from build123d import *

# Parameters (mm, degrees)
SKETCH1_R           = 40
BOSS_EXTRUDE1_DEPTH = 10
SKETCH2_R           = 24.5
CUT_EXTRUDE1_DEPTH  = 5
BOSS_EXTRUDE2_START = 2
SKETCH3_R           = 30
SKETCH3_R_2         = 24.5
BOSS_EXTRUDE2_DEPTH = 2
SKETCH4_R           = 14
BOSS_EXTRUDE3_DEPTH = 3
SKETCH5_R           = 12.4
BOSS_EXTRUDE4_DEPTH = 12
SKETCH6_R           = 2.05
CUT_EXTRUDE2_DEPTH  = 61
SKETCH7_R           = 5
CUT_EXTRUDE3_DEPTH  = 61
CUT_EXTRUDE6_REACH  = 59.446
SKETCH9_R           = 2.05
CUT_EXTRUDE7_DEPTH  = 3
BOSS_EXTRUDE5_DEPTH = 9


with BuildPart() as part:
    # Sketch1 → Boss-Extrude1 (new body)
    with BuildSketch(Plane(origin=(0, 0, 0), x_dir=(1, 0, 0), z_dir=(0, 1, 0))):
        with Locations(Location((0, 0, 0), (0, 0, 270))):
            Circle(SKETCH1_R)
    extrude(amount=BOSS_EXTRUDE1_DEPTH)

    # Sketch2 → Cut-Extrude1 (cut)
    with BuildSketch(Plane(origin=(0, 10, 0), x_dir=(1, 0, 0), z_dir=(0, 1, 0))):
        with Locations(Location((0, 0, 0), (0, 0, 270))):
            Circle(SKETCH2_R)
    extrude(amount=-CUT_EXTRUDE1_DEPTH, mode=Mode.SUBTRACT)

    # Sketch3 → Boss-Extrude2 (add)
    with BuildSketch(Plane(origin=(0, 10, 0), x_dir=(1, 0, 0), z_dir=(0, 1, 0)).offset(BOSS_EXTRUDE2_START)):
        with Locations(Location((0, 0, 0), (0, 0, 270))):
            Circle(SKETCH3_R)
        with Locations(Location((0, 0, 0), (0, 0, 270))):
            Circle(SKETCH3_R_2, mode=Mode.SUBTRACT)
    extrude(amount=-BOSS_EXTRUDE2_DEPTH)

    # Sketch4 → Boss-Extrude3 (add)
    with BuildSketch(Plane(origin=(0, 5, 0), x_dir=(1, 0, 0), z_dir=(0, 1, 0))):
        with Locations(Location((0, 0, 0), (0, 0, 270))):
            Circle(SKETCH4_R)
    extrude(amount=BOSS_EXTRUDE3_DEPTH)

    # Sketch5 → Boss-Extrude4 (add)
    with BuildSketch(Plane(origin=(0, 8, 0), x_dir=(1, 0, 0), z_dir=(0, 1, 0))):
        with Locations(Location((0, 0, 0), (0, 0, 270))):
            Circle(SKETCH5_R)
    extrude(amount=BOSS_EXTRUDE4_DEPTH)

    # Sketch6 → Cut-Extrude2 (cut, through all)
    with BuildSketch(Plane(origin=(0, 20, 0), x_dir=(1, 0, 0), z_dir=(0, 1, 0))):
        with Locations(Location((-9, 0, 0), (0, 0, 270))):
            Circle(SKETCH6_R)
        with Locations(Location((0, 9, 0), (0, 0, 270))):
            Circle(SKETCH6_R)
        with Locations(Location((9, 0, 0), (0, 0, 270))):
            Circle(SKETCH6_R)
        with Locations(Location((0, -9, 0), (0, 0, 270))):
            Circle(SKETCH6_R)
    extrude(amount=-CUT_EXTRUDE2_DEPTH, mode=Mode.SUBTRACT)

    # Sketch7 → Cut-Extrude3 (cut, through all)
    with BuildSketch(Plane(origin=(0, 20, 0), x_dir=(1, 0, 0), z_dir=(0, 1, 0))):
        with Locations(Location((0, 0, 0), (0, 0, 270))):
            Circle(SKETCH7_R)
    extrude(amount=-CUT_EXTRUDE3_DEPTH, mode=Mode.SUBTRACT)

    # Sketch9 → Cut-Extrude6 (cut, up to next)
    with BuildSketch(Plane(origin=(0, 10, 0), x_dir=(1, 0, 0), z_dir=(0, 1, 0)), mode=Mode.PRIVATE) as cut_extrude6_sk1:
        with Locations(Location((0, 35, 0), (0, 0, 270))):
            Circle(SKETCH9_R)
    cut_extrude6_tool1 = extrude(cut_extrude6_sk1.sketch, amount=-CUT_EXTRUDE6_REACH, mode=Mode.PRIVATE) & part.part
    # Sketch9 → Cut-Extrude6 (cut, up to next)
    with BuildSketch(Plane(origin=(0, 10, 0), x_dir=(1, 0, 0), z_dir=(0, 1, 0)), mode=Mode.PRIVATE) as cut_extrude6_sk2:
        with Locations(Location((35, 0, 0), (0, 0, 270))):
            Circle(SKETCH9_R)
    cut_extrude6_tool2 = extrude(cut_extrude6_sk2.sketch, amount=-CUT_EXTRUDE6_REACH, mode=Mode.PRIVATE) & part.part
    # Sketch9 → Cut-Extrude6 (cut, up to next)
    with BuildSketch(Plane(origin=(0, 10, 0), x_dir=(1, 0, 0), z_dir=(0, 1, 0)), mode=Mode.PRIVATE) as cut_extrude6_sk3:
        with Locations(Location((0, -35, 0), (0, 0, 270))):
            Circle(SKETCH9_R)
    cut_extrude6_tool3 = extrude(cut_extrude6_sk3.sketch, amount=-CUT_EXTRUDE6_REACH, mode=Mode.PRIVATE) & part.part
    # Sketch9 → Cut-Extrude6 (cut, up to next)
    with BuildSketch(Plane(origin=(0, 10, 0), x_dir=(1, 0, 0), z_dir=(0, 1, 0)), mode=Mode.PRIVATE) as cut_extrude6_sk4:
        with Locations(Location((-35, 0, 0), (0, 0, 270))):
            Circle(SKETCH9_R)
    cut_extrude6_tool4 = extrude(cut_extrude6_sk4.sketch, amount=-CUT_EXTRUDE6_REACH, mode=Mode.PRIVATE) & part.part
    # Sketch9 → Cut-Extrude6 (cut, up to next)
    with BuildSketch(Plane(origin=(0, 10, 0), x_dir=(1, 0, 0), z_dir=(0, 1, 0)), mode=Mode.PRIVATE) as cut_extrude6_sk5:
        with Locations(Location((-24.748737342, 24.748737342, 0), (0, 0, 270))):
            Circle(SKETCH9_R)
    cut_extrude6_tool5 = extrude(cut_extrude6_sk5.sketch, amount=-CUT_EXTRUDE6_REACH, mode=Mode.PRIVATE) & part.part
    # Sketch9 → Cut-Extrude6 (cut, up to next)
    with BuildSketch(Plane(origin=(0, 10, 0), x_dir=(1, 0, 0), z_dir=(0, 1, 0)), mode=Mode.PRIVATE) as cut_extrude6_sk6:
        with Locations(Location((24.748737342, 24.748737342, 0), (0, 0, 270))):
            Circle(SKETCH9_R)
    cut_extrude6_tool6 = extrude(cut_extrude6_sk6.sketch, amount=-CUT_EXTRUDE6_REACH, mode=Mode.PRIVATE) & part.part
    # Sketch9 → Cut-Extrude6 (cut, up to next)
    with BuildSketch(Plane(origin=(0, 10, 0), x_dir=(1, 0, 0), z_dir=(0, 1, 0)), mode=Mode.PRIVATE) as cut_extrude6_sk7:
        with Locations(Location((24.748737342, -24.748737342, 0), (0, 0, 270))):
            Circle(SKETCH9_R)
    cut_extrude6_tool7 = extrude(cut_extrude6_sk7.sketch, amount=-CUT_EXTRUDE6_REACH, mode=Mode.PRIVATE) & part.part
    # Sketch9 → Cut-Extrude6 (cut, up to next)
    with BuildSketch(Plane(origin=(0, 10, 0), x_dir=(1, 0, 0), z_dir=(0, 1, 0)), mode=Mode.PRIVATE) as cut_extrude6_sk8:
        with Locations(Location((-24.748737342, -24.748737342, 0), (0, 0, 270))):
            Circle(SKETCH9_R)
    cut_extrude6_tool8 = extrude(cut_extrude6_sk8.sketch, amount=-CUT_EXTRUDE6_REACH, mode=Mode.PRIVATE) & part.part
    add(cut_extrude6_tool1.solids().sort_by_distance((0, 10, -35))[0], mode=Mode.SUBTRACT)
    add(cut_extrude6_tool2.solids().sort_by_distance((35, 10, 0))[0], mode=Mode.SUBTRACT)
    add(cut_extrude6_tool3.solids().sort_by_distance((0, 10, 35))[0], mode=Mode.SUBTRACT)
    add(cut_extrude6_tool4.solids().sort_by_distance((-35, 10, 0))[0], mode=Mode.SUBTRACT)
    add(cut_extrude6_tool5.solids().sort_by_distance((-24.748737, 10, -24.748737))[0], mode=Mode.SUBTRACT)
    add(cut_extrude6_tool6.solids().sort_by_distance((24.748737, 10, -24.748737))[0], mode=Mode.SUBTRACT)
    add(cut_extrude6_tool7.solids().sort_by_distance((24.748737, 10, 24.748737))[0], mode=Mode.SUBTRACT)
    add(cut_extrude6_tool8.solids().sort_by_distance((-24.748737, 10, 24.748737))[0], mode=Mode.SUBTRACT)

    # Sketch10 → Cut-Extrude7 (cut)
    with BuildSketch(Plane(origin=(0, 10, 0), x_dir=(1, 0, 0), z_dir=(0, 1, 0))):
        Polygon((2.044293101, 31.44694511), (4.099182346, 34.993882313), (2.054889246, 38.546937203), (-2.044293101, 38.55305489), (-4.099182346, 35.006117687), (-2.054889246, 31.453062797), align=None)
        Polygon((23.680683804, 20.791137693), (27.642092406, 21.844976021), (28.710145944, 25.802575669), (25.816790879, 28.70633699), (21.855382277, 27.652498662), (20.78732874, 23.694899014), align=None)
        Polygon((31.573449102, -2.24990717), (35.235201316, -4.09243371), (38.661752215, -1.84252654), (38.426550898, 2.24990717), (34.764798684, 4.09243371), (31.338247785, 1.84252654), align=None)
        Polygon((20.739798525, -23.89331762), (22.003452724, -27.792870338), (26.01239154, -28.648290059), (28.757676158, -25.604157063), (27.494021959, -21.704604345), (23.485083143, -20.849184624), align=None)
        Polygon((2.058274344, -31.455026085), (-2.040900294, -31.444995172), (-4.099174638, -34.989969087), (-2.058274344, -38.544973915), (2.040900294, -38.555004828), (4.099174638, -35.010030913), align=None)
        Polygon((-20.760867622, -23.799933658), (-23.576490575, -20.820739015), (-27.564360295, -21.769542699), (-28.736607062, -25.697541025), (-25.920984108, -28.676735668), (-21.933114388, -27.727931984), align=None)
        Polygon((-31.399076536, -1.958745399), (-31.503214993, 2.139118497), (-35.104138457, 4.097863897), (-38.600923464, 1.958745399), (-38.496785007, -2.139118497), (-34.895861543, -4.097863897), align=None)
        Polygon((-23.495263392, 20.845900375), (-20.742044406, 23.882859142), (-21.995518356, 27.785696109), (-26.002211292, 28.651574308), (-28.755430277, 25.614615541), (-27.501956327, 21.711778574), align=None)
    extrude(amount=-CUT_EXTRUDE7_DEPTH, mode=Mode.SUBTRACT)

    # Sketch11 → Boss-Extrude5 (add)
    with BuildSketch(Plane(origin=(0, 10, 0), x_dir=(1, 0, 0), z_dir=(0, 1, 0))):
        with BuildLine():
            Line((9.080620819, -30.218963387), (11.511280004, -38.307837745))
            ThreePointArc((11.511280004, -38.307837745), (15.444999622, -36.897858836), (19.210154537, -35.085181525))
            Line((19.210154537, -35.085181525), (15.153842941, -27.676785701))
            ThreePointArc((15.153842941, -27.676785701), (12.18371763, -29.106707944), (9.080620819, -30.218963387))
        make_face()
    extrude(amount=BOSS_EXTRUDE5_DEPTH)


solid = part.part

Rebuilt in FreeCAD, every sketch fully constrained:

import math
import FreeCAD as App
import Part
import Sketcher

V = App.Vector
Q = App.Units.Quantity

doc = App.newDocument("Part")
body = doc.addObject("PartDesign::Body", "Body")

sketch1 = doc.addObject("Sketcher::SketchObject", "Sketch")
body.addObject(sketch1)
sketch1.AttachmentSupport = (doc.XZ_Plane, [""])
sketch1.MapMode = "FlatFace"
sketch1.addGeometry(Part.Circle(V(0, 0, 0), V(0, 0, 1), 40), False)
sketch1.addConstraint([
    Sketcher.Constraint("Coincident", 0, 3, -1, 1),
    Sketcher.Constraint("Diameter", 0, Q("80 mm")),
])
pad1 = doc.addObject("PartDesign::Pad", "Pad")
body.addObject(pad1)
pad1.Profile = sketch1
pad1.Length = 10
pad1.Reversed = True

sketch2 = doc.addObject("Sketcher::SketchObject", "Sketch001")
body.addObject(sketch2)
sketch2.AttachmentSupport = (doc.XZ_Plane, [""])
sketch2.MapMode = "FlatFace"
sketch2.AttachmentOffset = App.Placement(V(0, 0, -10), App.Rotation())
sketch2.addGeometry(Part.Circle(V(0, 0, 0), V(0, 0, 1), 24), False)
sketch2.addConstraint([
    Sketcher.Constraint("Coincident", 0, 3, -1, 1),
    Sketcher.Constraint("Diameter", 0, Q("49 mm")),
])
pocket1 = doc.addObject("PartDesign::Pocket", "Pocket")
body.addObject(pocket1)
pocket1.Profile = sketch2
pocket1.Length = 5
pocket1.Reversed = True

sketch3 = doc.addObject("Sketcher::SketchObject", "Sketch002")
body.addObject(sketch3)
sketch3.AttachmentSupport = (doc.XZ_Plane, [""])
sketch3.MapMode = "FlatFace"
sketch3.AttachmentOffset = App.Placement(V(0, 0, -12), App.Rotation())
sketch3.addGeometry([
    Part.Circle(V(0, 0, 0), V(0, 0, 1), 30),
    Part.Circle(V(0, 0, 0), V(0, 0, 1), 24),
], False)
sketch3.addConstraint([
    Sketcher.Constraint("Coincident", 0, 3, -1, 1),
    Sketcher.Constraint("Coincident", 1, 3, -1, 1),
    Sketcher.Constraint("Diameter", 0, Q("60 mm")),
    Sketcher.Constraint("Diameter", 1, Q("49 mm")),
])
pad2 = doc.addObject("PartDesign::Pad", "Pad001")
body.addObject(pad2)
pad2.Profile = sketch3
pad2.Length = 2

sketch4 = doc.addObject("Sketcher::SketchObject", "Sketch003")
body.addObject(sketch4)
sketch4.AttachmentSupport = (doc.XZ_Plane, [""])
sketch4.MapMode = "FlatFace"
sketch4.AttachmentOffset = App.Placement(V(0, 0, -5), App.Rotation())
sketch4.addGeometry(Part.Circle(V(0, 0, 0), V(0, 0, 1), 14), False)
sketch4.addConstraint([
    Sketcher.Constraint("Coincident", 0, 3, -1, 1),
    Sketcher.Constraint("Diameter", 0, Q("28 mm")),
])
pad3 = doc.addObject("PartDesign::Pad", "Pad002")
body.addObject(pad3)
pad3.Profile = sketch4
pad3.Length = 3
pad3.Reversed = True

sketch5 = doc.addObject("Sketcher::SketchObject", "Sketch004")
body.addObject(sketch5)
sketch5.AttachmentSupport = (doc.XZ_Plane, [""])
sketch5.MapMode = "FlatFace"
sketch5.AttachmentOffset = App.Placement(V(0, 0, -8), App.Rotation())
sketch5.addGeometry(Part.Circle(V(0, 0, 0), V(0, 0, 1), 12), False)
sketch5.addConstraint([
    Sketcher.Constraint("Coincident", 0, 3, -1, 1),
    Sketcher.Constraint("Diameter", 0, Q("24.8 mm")),
])
pad4 = doc.addObject("PartDesign::Pad", "Pad003")
body.addObject(pad4)
pad4.Profile = sketch5
pad4.Length = 12
pad4.Reversed = True

sketch6 = doc.addObject("Sketcher::SketchObject", "Sketch005")
body.addObject(sketch6)
sketch6.AttachmentSupport = (doc.XZ_Plane, [""])
sketch6.MapMode = "FlatFace"
sketch6.AttachmentOffset = App.Placement(V(0, 0, -20), App.Rotation())
sketch6.addGeometry([
    Part.Circle(V(-9, 0, 0), V(0, 0, 1), 2),
    Part.Circle(V(0, -9, 0), V(0, 0, 1), 2),
    Part.Circle(V(9, 0, 0), V(0, 0, 1), 2),
    Part.Circle(V(0, 9, 0), V(0, 0, 1), 2),
], False)
sketch6.addConstraint([
    Sketcher.Constraint("Equal", 0, 1),
    Sketcher.Constraint("Equal", 1, 2),
    Sketcher.Constraint("Equal", 2, 3),
    Sketcher.Constraint("Symmetric", 0, 3, 2, 3, -1, 1),
    Sketcher.Constraint("Symmetric", 1, 3, 3, 3, -1, 1),
    Sketcher.Constraint("PointOnObject", 0, 3, -1),
    Sketcher.Constraint("PointOnObject", 1, 3, -2),
    Sketcher.Constraint("Diameter", 0, Q("4.1 mm")),
    Sketcher.Constraint("DistanceX", 0, 3, -1, 1, Q("9 mm")),
    Sketcher.Constraint("DistanceY", 1, 3, -1, 1, Q("9 mm")),
])
pocket2 = doc.addObject("PartDesign::Pocket", "Pocket001")
body.addObject(pocket2)
pocket2.Profile = sketch6
pocket2.Type = "ThroughAll"
pocket2.Reversed = True

sketch7 = doc.addObject("Sketcher::SketchObject", "Sketch006")
body.addObject(sketch7)
sketch7.AttachmentSupport = (doc.XZ_Plane, [""])
sketch7.MapMode = "FlatFace"
sketch7.AttachmentOffset = App.Placement(V(0, 0, -20), App.Rotation())
sketch7.addGeometry(Part.Circle(V(0, 0, 0), V(0, 0, 1), 5), False)
sketch7.addConstraint([
    Sketcher.Constraint("Coincident", 0, 3, -1, 1),
    Sketcher.Constraint("Diameter", 0, Q("10 mm")),
])
pocket3 = doc.addObject("PartDesign::Pocket", "Pocket002")
body.addObject(pocket3)
pocket3.Profile = sketch7
pocket3.Type = "ThroughAll"
pocket3.Reversed = True

sketch8 = doc.addObject("Sketcher::SketchObject", "Sketch007")
body.addObject(sketch8)
sketch8.AttachmentSupport = (doc.XZ_Plane, [""])
sketch8.MapMode = "FlatFace"
sketch8.AttachmentOffset = App.Placement(V(0, 0, -10), App.Rotation())
sketch8.addGeometry(Part.Circle(V(0, -35, 0), V(0, 0, 1), 2), False)
sketch8.addConstraint([
    Sketcher.Constraint("PointOnObject", 0, 3, -2),
    Sketcher.Constraint("Diameter", 0, Q("4.1 mm")),
    Sketcher.Constraint("DistanceY", 0, 3, -1, 1, Q("35 mm")),
])
pocket4 = doc.addObject("PartDesign::Pocket", "Pocket003")
body.addObject(pocket4)
pocket4.Profile = sketch8
pocket4.Type = "UpToFirst"
pocket4.Reversed = True

sketch9 = doc.addObject("Sketcher::SketchObject", "Sketch008")
body.addObject(sketch9)
sketch9.AttachmentSupport = (doc.XZ_Plane, [""])
sketch9.MapMode = "FlatFace"
sketch9.AttachmentOffset = App.Placement(V(0, 0, -10), App.Rotation())
sketch9.addGeometry(Part.Circle(V(35, 0, 0), V(0, 0, 1), 2), False)
sketch9.addConstraint([
    Sketcher.Constraint("PointOnObject", 0, 3, -1),
    Sketcher.Constraint("Diameter", 0, Q("4.1 mm")),
    Sketcher.Constraint("DistanceX", -1, 1, 0, 3, Q("35 mm")),
])
pocket5 = doc.addObject("PartDesign::Pocket", "Pocket004")
body.addObject(pocket5)
pocket5.Profile = sketch9
pocket5.Type = "UpToFirst"
pocket5.Reversed = True

sketch10 = doc.addObject("Sketcher::SketchObject", "Sketch009")
body.addObject(sketch10)
sketch10.AttachmentSupport = (doc.XZ_Plane, [""])
sketch10.MapMode = "FlatFace"
sketch10.AttachmentOffset = App.Placement(V(0, 0, -10), App.Rotation())
sketch10.addGeometry(Part.Circle(V(0, 35, 0), V(0, 0, 1), 2), False)
sketch10.addConstraint([
    Sketcher.Constraint("PointOnObject", 0, 3, -2),
    Sketcher.Constraint("Diameter", 0, Q("4.1 mm")),
    Sketcher.Constraint("DistanceY", -1, 1, 0, 3, Q("35 mm")),
])
pocket6 = doc.addObject("PartDesign::Pocket", "Pocket005")
body.addObject(pocket6)
pocket6.Profile = sketch10
pocket6.Type = "UpToFirst"
pocket6.Reversed = True

sketch11 = doc.addObject("Sketcher::SketchObject", "Sketch010")
body.addObject(sketch11)
sketch11.AttachmentSupport = (doc.XZ_Plane, [""])
sketch11.MapMode = "FlatFace"
sketch11.AttachmentOffset = App.Placement(V(0, 0, -10), App.Rotation())
sketch11.addGeometry(Part.Circle(V(-35, 0, 0), V(0, 0, 1), 2), False)
sketch11.addConstraint([
    Sketcher.Constraint("PointOnObject", 0, 3, -1),
    Sketcher.Constraint("Diameter", 0, Q("4.1 mm")),
    Sketcher.Constraint("DistanceX", 0, 3, -1, 1, Q("35 mm")),
])
pocket7 = doc.addObject("PartDesign::Pocket", "Pocket006")
body.addObject(pocket7)
pocket7.Profile = sketch11
pocket7.Type = "UpToFirst"
pocket7.Reversed = True

sketch12 = doc.addObject("Sketcher::SketchObject", "Sketch011")
body.addObject(sketch12)
sketch12.AttachmentSupport = (doc.XZ_Plane, [""])
sketch12.MapMode = "FlatFace"
sketch12.AttachmentOffset = App.Placement(V(0, 0, -10), App.Rotation())
sketch12.addGeometry(Part.Circle(V(-24.7, -24.7, 0), V(0, 0, 1), 2), False)
sketch12.addConstraint([
    Sketcher.Constraint("Diameter", 0, Q("4.1 mm")),
    Sketcher.Constraint("DistanceX", 0, 3, -1, 1, Q("24.748737 mm")),
    Sketcher.Constraint("DistanceY", 0, 3, -1, 1, Q("24.748737 mm")),
])
pocket8 = doc.addObject("PartDesign::Pocket", "Pocket007")
body.addObject(pocket8)
pocket8.Profile = sketch12
pocket8.Type = "UpToFirst"
pocket8.Reversed = True

sketch13 = doc.addObject("Sketcher::SketchObject", "Sketch012")
body.addObject(sketch13)
sketch13.AttachmentSupport = (doc.XZ_Plane, [""])
sketch13.MapMode = "FlatFace"
sketch13.AttachmentOffset = App.Placement(V(0, 0, -10), App.Rotation())
sketch13.addGeometry(Part.Circle(V(24.7, -24.7, 0), V(0, 0, 1), 2), False)
sketch13.addConstraint([
    Sketcher.Constraint("Diameter", 0, Q("4.1 mm")),
    Sketcher.Constraint("DistanceX", -1, 1, 0, 3, Q("24.748737 mm")),
    Sketcher.Constraint("DistanceY", 0, 3, -1, 1, Q("24.748737 mm")),
])
pocket9 = doc.addObject("PartDesign::Pocket", "Pocket008")
body.addObject(pocket9)
pocket9.Profile = sketch13
pocket9.Type = "UpToFirst"
pocket9.Reversed = True

sketch14 = doc.addObject("Sketcher::SketchObject", "Sketch013")
body.addObject(sketch14)
sketch14.AttachmentSupport = (doc.XZ_Plane, [""])
sketch14.MapMode = "FlatFace"
sketch14.AttachmentOffset = App.Placement(V(0, 0, -10), App.Rotation())
sketch14.addGeometry(Part.Circle(V(24.7, 24.7, 0), V(0, 0, 1), 2), False)
sketch14.addConstraint([
    Sketcher.Constraint("Diameter", 0, Q("4.1 mm")),
    Sketcher.Constraint("DistanceX", -1, 1, 0, 3, Q("24.748737 mm")),
    Sketcher.Constraint("DistanceY", -1, 1, 0, 3, Q("24.748737 mm")),
])
pocket10 = doc.addObject("PartDesign::Pocket", "Pocket009")
body.addObject(pocket10)
pocket10.Profile = sketch14
pocket10.Type = "UpToFirst"
pocket10.Reversed = True

sketch15 = doc.addObject("Sketcher::SketchObject", "Sketch014")
body.addObject(sketch15)
sketch15.AttachmentSupport = (doc.XZ_Plane, [""])
sketch15.MapMode = "FlatFace"
sketch15.AttachmentOffset = App.Placement(V(0, 0, -10), App.Rotation())
sketch15.addGeometry(Part.Circle(V(-24.7, 24.7, 0), V(0, 0, 1), 2), False)
sketch15.addConstraint([
    Sketcher.Constraint("Diameter", 0, Q("4.1 mm")),
    Sketcher.Constraint("DistanceX", 0, 3, -1, 1, Q("24.748737 mm")),
    Sketcher.Constraint("DistanceY", -1, 1, 0, 3, Q("24.748737 mm")),
])
pocket11 = doc.addObject("PartDesign::Pocket", "Pocket010")
body.addObject(pocket11)
pocket11.Profile = sketch15
pocket11.Type = "UpToFirst"
pocket11.Reversed = True

sketch16 = doc.addObject("Sketcher::SketchObject", "Sketch015")
body.addObject(sketch16)
sketch16.AttachmentSupport = (doc.XZ_Plane, [""])
sketch16.MapMode = "FlatFace"
sketch16.AttachmentOffset = App.Placement(V(0, 0, -10), App.Rotation())
sketch16.addGeometry([
    Part.LineSegment(V(2.044293, -31.446945, 0), V(4.099182, -34.993882, 0)),
    Part.LineSegment(V(4.099182, -34.993882, 0), V(2.054889, -38.546937, 0)),
    Part.LineSegment(V(2.054889, -38.546937, 0), V(-2.044293, -38.553055, 0)),
    Part.LineSegment(V(-2.044293, -38.553055, 0), V(-4.099182, -35.006118, 0)),
    Part.LineSegment(V(-4.099182, -35.006118, 0), V(-2.054889, -31.453063, 0)),
    Part.LineSegment(V(-2.054889, -31.453063, 0), V(2.044293, -31.446945, 0)),
    Part.LineSegment(V(23.680684, -20.791138, 0), V(27.642092, -21.844976, 0)),
    Part.LineSegment(V(27.642092, -21.844976, 0), V(28.710146, -25.802576, 0)),
    Part.LineSegment(V(28.710146, -25.802576, 0), V(25.816791, -28.706337, 0)),
    Part.LineSegment(V(25.816791, -28.706337, 0), V(21.855382, -27.652499, 0)),
    Part.LineSegment(V(21.855382, -27.652499, 0), V(20.787329, -23.694899, 0)),
    Part.LineSegment(V(20.787329, -23.694899, 0), V(23.680684, -20.791138, 0)),
    Part.LineSegment(V(31.573449, 2.249907, 0), V(35.235201, 4.092434, 0)),
    Part.LineSegment(V(35.235201, 4.092434, 0), V(38.661752, 1.842527, 0)),
    Part.LineSegment(V(38.661752, 1.842527, 0), V(38.426551, -2.249907, 0)),
    Part.LineSegment(V(38.426551, -2.249907, 0), V(34.764799, -4.092434, 0)),
    Part.LineSegment(V(34.764799, -4.092434, 0), V(31.338248, -1.842527, 0)),
    Part.LineSegment(V(31.338248, -1.842527, 0), V(31.573449, 2.249907, 0)),
    Part.LineSegment(V(20.739799, 23.893318, 0), V(22.003453, 27.79287, 0)),
    Part.LineSegment(V(22.003453, 27.79287, 0), V(26.012392, 28.64829, 0)),
    Part.LineSegment(V(26.012392, 28.64829, 0), V(28.757676, 25.604157, 0)),
    Part.LineSegment(V(28.757676, 25.604157, 0), V(27.494022, 21.704604, 0)),
    Part.LineSegment(V(27.494022, 21.704604, 0), V(23.485083, 20.849185, 0)),
    Part.LineSegment(V(23.485083, 20.849185, 0), V(20.739799, 23.893318, 0)),
    Part.LineSegment(V(2.058274, 31.455026, 0), V(-2.0409, 31.444995, 0)),
    Part.LineSegment(V(-2.0409, 31.444995, 0), V(-4.099175, 34.989969, 0)),
    Part.LineSegment(V(-4.099175, 34.989969, 0), V(-2.058274, 38.544974, 0)),
    Part.LineSegment(V(-2.058274, 38.544974, 0), V(2.0409, 38.555005, 0)),
    Part.LineSegment(V(2.0409, 38.555005, 0), V(4.099175, 35.010031, 0)),
    Part.LineSegment(V(4.099175, 35.010031, 0), V(2.058274, 31.455026, 0)),
    Part.LineSegment(V(-20.760868, 23.799934, 0), V(-23.576491, 20.820739, 0)),
    Part.LineSegment(V(-23.576491, 20.820739, 0), V(-27.56436, 21.769543, 0)),
    Part.LineSegment(V(-27.56436, 21.769543, 0), V(-28.736607, 25.697541, 0)),
    Part.LineSegment(V(-28.736607, 25.697541, 0), V(-25.920984, 28.676736, 0)),
    Part.LineSegment(V(-25.920984, 28.676736, 0), V(-21.933114, 27.727932, 0)),
    Part.LineSegment(V(-21.933114, 27.727932, 0), V(-20.760868, 23.799934, 0)),
    Part.LineSegment(V(-31.399077, 1.958745, 0), V(-31.503215, -2.139118, 0)),
    Part.LineSegment(V(-31.503215, -2.139118, 0), V(-35.104138, -4.097864, 0)),
    Part.LineSegment(V(-35.104138, -4.097864, 0), V(-38.600923, -1.958745, 0)),
    Part.LineSegment(V(-38.600923, -1.958745, 0), V(-38.496785, 2.139118, 0)),
    Part.LineSegment(V(-38.496785, 2.139118, 0), V(-34.895862, 4.097864, 0)),
    Part.LineSegment(V(-34.895862, 4.097864, 0), V(-31.399077, 1.958745, 0)),
    Part.LineSegment(V(-23.495263, -20.8459, 0), V(-20.742044, -23.882859, 0)),
    Part.LineSegment(V(-20.742044, -23.882859, 0), V(-21.995518, -27.785696, 0)),
    Part.LineSegment(V(-21.995518, -27.785696, 0), V(-26.002211, -28.651574, 0)),
    Part.LineSegment(V(-26.002211, -28.651574, 0), V(-28.75543, -25.614616, 0)),
    Part.LineSegment(V(-28.75543, -25.614616, 0), V(-27.501956, -21.711779, 0)),
    Part.LineSegment(V(-27.501956, -21.711779, 0), V(-23.495263, -20.8459, 0)),
], False)
sketch16.addConstraint([
    Sketcher.Constraint("Coincident", 0, 2, 1, 1),
    Sketcher.Constraint("Coincident", 1, 2, 2, 1),
    Sketcher.Constraint("Coincident", 2, 2, 3, 1),
    Sketcher.Constraint("Coincident", 3, 2, 4, 1),
    Sketcher.Constraint("Coincident", 4, 2, 5, 1),
    Sketcher.Constraint("Coincident", 5, 2, 0, 1),
    Sketcher.Constraint("Coincident", 6, 2, 7, 1),
    Sketcher.Constraint("Coincident", 7, 2, 8, 1),
    Sketcher.Constraint("Coincident", 8, 2, 9, 1),
    Sketcher.Constraint("Coincident", 9, 2, 10, 1),
    Sketcher.Constraint("Coincident", 10, 2, 11, 1),
    Sketcher.Constraint("Coincident", 11, 2, 6, 1),
    Sketcher.Constraint("Coincident", 12, 2, 13, 1),
    Sketcher.Constraint("Coincident", 13, 2, 14, 1),
    Sketcher.Constraint("Coincident", 14, 2, 15, 1),
    Sketcher.Constraint("Coincident", 15, 2, 16, 1),
    Sketcher.Constraint("Coincident", 16, 2, 17, 1),
    Sketcher.Constraint("Coincident", 17, 2, 12, 1),
    Sketcher.Constraint("Coincident", 18, 2, 19, 1),
    Sketcher.Constraint("Coincident", 19, 2, 20, 1),
    Sketcher.Constraint("Coincident", 20, 2, 21, 1),
    Sketcher.Constraint("Coincident", 21, 2, 22, 1),
    Sketcher.Constraint("Coincident", 22, 2, 23, 1),
    Sketcher.Constraint("Coincident", 23, 2, 18, 1),
    Sketcher.Constraint("Coincident", 24, 2, 25, 1),
    Sketcher.Constraint("Coincident", 25, 2, 26, 1),
    Sketcher.Constraint("Coincident", 26, 2, 27, 1),
    Sketcher.Constraint("Coincident", 27, 2, 28, 1),
    Sketcher.Constraint("Coincident", 28, 2, 29, 1),
    Sketcher.Constraint("Coincident", 29, 2, 24, 1),
    Sketcher.Constraint("Coincident", 30, 2, 31, 1),
    Sketcher.Constraint("Coincident", 31, 2, 32, 1),
    Sketcher.Constraint("Coincident", 32, 2, 33, 1),
    Sketcher.Constraint("Coincident", 33, 2, 34, 1),
    Sketcher.Constraint("Coincident", 34, 2, 35, 1),
    Sketcher.Constraint("Coincident", 35, 2, 30, 1),
    Sketcher.Constraint("Coincident", 36, 2, 37, 1),
    Sketcher.Constraint("Coincident", 37, 2, 38, 1),
    Sketcher.Constraint("Coincident", 38, 2, 39, 1),
    Sketcher.Constraint("Coincident", 39, 2, 40, 1),
    Sketcher.Constraint("Coincident", 40, 2, 41, 1),
    Sketcher.Constraint("Coincident", 41, 2, 36, 1),
    Sketcher.Constraint("Coincident", 42, 2, 43, 1),
    Sketcher.Constraint("Coincident", 43, 2, 44, 1),
    Sketcher.Constraint("Coincident", 44, 2, 45, 1),
    Sketcher.Constraint("Coincident", 45, 2, 46, 1),
    Sketcher.Constraint("Coincident", 46, 2, 47, 1),
    Sketcher.Constraint("Coincident", 47, 2, 42, 1),
    Sketcher.Constraint("DistanceY", 31, 2, 32, 2, Q("3.927998 mm")),
    Sketcher.Constraint("DistanceY", 35, 2, 34, 2, Q("3.927998 mm")),
    Sketcher.Constraint("DistanceY", 9, 2, -1, 1, Q("27.652499 mm")),
    Sketcher.Constraint("DistanceY", 10, 2, -1, 1, Q("23.694899 mm")),
    Sketcher.Constraint("DistanceX", -1, 1, 12, 2, Q("35.235201 mm")),
    Sketcher.Constraint("DistanceX", -1, 1, 15, 2, Q("34.764799 mm")),
    Sketcher.Constraint("DistanceX", -1, 1, 23, 2, Q("20.739799 mm")),
    Sketcher.Constraint("DistanceX", 24, 2, -1, 1, Q("2.0409 mm")),
    Sketcher.Constraint("DistanceX", -1, 1, 27, 2, Q("2.0409 mm")),
    Sketcher.Constraint("DistanceY", 47, 2, -1, 1, Q("20.8459 mm")),
    Sketcher.Constraint("DistanceX", 5, 2, 6, 2, Q("25.597799 mm")),
    Sketcher.Constraint("DistanceY", 7, 2, 6, 2, Q("3.9576 mm")),
    Sketcher.Constraint("DistanceX", 8, 2, 6, 2, Q("1.825302 mm")),
    Sketcher.Constraint("DistanceX", 1, 2, 8, 2, Q("23.761902 mm")),
    Sketcher.Constraint("DistanceY", 1, 2, 8, 2, Q("9.8406 mm")),
    Sketcher.Constraint("DistanceX", 0, 2, 9, 2, Q("17.7562 mm")),
    Sketcher.Constraint("DistanceX", 9, 2, 11, 2, Q("1.825302 mm")),
    Sketcher.Constraint("DistanceY", 8, 2, 11, 2, Q("7.915199 mm")),
    Sketcher.Constraint("DistanceX", 14, 2, 13, 2, Q("0.235201 mm")),
    Sketcher.Constraint("DistanceX", 16, 2, 17, 2, Q("0.235201 mm")),
    Sketcher.Constraint("DistanceX", 17, 2, 14, 2, Q("6.853102 mm")),
    Sketcher.Constraint("DistanceX", 18, 2, 13, 2, Q("16.658299 mm")),
    Sketcher.Constraint("DistanceY", 18, 2, 25, 2, Q("7.197099 mm")),
    Sketcher.Constraint("DistanceX", 25, 2, 26, 2, Q("2.0409 mm")),
    Sketcher.Constraint("DistanceX", 29, 2, 28, 2, Q("2.0409 mm")),
    Sketcher.Constraint("DistanceX", 40, 2, 31, 2, Q("7.331501 mm")),
    Sketcher.Constraint("DistanceX", -1, 1, 1, 2, Q("2.054889 mm")),
    Sketcher.Constraint("DistanceX", 4, 2, -1, 1, Q("2.054889 mm")),
    Sketcher.Constraint("DistanceX", -1, 1, 10, 2, Q("20.787329 mm")),
    Sketcher.Constraint("DistanceX", -1, 1, 14, 2, Q("38.426551 mm")),
    Sketcher.Constraint("DistanceY", -1, 1, 18, 2, Q("27.79287 mm")),
    Sketcher.Constraint("DistanceX", -1, 1, 19, 2, Q("26.012392 mm")),
    Sketcher.Constraint("DistanceY", -1, 1, 19, 2, Q("28.64829 mm")),
    Sketcher.Constraint("DistanceX", -1, 1, 21, 2, Q("27.494022 mm")),
    Sketcher.Constraint("DistanceY", -1, 1, 28, 2, Q("35.010031 mm")),
    Sketcher.Constraint("DistanceX", 30, 2, -1, 1, Q("23.576491 mm")),
    Sketcher.Constraint("DistanceY", -1, 1, 30, 2, Q("20.820739 mm")),
    Sketcher.Constraint("DistanceX", 31, 2, -1, 1, Q("27.56436 mm")),
    Sketcher.Constraint("DistanceY", -1, 1, 32, 2, Q("25.697541 mm")),
    Sketcher.Constraint("DistanceY", -1, 1, 34, 2, Q("27.727932 mm")),
    Sketcher.Constraint("DistanceY", 36, 2, -1, 1, Q("2.139118 mm")),
    Sketcher.Constraint("DistanceX", 37, 2, -1, 1, Q("35.104138 mm")),
    Sketcher.Constraint("DistanceY", -1, 1, 39, 2, Q("2.139118 mm")),
    Sketcher.Constraint("DistanceY", 42, 2, -1, 1, Q("23.882859 mm")),
    Sketcher.Constraint("DistanceX", 43, 2, -1, 1, Q("21.995518 mm")),
    Sketcher.Constraint("DistanceX", 44, 2, -1, 1, Q("26.002211 mm")),
    Sketcher.Constraint("DistanceX", 45, 2, -1, 1, Q("28.75543 mm")),
    Sketcher.Constraint("DistanceY", 46, 2, -1, 1, Q("21.711779 mm")),
    Sketcher.Constraint("DistanceX", 3, 2, 2, 2, Q("2.054889 mm")),
    Sketcher.Constraint("DistanceX", 3, 2, 1, 2, Q("6.154072 mm")),
    Sketcher.Constraint("DistanceY", 1, 2, 3, 2, Q("3.54082 mm")),
    Sketcher.Constraint("DistanceX", 4, 2, 0, 2, Q("6.154072 mm")),
    Sketcher.Constraint("DistanceY", 0, 2, 4, 2, Q("3.54082 mm")),
    Sketcher.Constraint("DistanceY", 2, 2, 5, 2, Q("7.10611 mm")),
    Sketcher.Constraint("DistanceY", 5, 2, 6, 2, Q("9.601969 mm")),
    Sketcher.Constraint("DistanceY", 1, 2, 6, 2, Q("16.701961 mm")),
    Sketcher.Constraint("DistanceY", 8, 2, 9, 2, Q("1.053838 mm")),
    Sketcher.Constraint("DistanceY", 6, 2, 12, 2, Q("25.93741 mm")),
    Sketcher.Constraint("DistanceY", 14, 2, 12, 2, Q("6.342341 mm")),
    Sketcher.Constraint("DistanceY", 15, 2, 13, 2, Q("5.93496 mm")),
    Sketcher.Constraint("DistanceY", 16, 2, 12, 2, Q("5.93496 mm")),
    Sketcher.Constraint("DistanceY", 15, 2, 17, 2, Q("6.342341 mm")),
    Sketcher.Constraint("DistanceY", 17, 2, 20, 2, Q("23.35425 mm")),
    Sketcher.Constraint("DistanceY", 12, 2, 21, 2, Q("17.612171 mm")),
    Sketcher.Constraint("DistanceX", 22, 2, 21, 2, Q("4.008939 mm")),
    Sketcher.Constraint("DistanceY", 22, 2, 21, 2, Q("0.85542 mm")),
    Sketcher.Constraint("DistanceY", 23, 2, 20, 2, Q("1.710839 mm")),
    Sketcher.Constraint("DistanceY", 22, 2, 24, 2, Q("10.595811 mm")),
    Sketcher.Constraint("DistanceY", 23, 2, 25, 2, Q("11.096651 mm")),
    Sketcher.Constraint("DistanceY", 24, 2, 26, 2, Q("7.099979 mm")),
    Sketcher.Constraint("DistanceY", 26, 2, 27, 2, Q("0.010031 mm")),
    Sketcher.Constraint("DistanceX", 26, 2, 28, 2, Q("6.157449 mm")),
    Sketcher.Constraint("DistanceX", 28, 2, 18, 2, Q("17.904278 mm")),
    Sketcher.Constraint("DistanceY", 24, 2, 29, 2, Q("0.010031 mm")),
    Sketcher.Constraint("DistanceX", 33, 2, 25, 2, Q("21.821809 mm")),
    Sketcher.Constraint("DistanceY", 33, 2, 24, 2, Q("2.76826 mm")),
    Sketcher.Constraint("DistanceX", 33, 2, 34, 2, Q("3.98787 mm")),
    Sketcher.Constraint("DistanceX", 32, 2, 35, 2, Q("7.975739 mm")),
    Sketcher.Constraint("DistanceX", 36, 2, 33, 2, Q("5.582231 mm")),
    Sketcher.Constraint("DistanceX", 37, 2, 32, 2, Q("6.367531 mm")),
    Sketcher.Constraint("DistanceY", 37, 2, 38, 2, Q("2.139118 mm")),
    Sketcher.Constraint("DistanceX", 38, 2, 36, 2, Q("7.097708 mm")),
    Sketcher.Constraint("DistanceY", 38, 2, 31, 2, Q("23.728288 mm")),
    Sketcher.Constraint("DistanceX", 38, 2, 39, 2, Q("0.104138 mm")),
    Sketcher.Constraint("DistanceY", 38, 2, 40, 2, Q("6.056609 mm")),
    Sketcher.Constraint("DistanceX", 36, 2, 41, 2, Q("0.104138 mm")),
    Sketcher.Constraint("DistanceY", 41, 2, 40, 2, Q("2.139118 mm")),
    Sketcher.Constraint("DistanceX", 42, 2, 2, 2, Q("18.697751 mm")),
    Sketcher.Constraint("DistanceY", 3, 2, 43, 2, Q("7.220422 mm")),
    Sketcher.Constraint("DistanceY", 44, 2, 43, 2, Q("0.865878 mm")),
    Sketcher.Constraint("DistanceY", 4, 2, 44, 2, Q("2.801488 mm")),
    Sketcher.Constraint("DistanceY", 44, 2, 45, 2, Q("3.036959 mm")),
    Sketcher.Constraint("DistanceX", 46, 2, 42, 2, Q("6.759912 mm")),
    Sketcher.Constraint("DistanceX", 47, 2, 42, 2, Q("2.753219 mm")),
    Sketcher.Constraint("Distance", 7, Q("4.099187 mm")),
    Sketcher.Constraint("Distance", 20, Q("4.099187 mm")),
])
pocket12 = doc.addObject("PartDesign::Pocket", "Pocket011")
body.addObject(pocket12)
pocket12.Profile = sketch16
pocket12.Length = 3
pocket12.Reversed = True

sketch17 = doc.addObject("Sketcher::SketchObject", "Sketch016")
body.addObject(sketch17)
sketch17.AttachmentSupport = (doc.XZ_Plane, [""])
sketch17.MapMode = "FlatFace"
sketch17.AttachmentOffset = App.Placement(V(0, 0, -10), App.Rotation())
sketch17.addGeometry([
    Part.LineSegment(V(9, 30, 0), V(12, 38, 0)),
    Part.ArcOfCircle(Part.Circle(V(0, 0, 0), V(0, 0, 1), 40), math.radians(61.3), math.radians(73.27)),
    Part.LineSegment(V(19, 35, 0), V(15, 28, 0)),
    Part.ArcOfCircle(Part.Circle(V(0, 0, 0), V(0, 0, 1), 32), math.radians(61.3), math.radians(73.27)),
], False)
sketch17.addConstraint([
    Sketcher.Constraint("Coincident", 0, 2, 1, 2),
    Sketcher.Constraint("Coincident", 1, 1, 2, 1),
    Sketcher.Constraint("Coincident", 2, 2, 3, 1),
    Sketcher.Constraint("Coincident", 3, 2, 0, 1),
    Sketcher.Constraint("Coincident", 1, 3, -1, 1),
    Sketcher.Constraint("Coincident", 3, 3, -1, 1),
    Sketcher.Constraint("Radius", 1, Q("40 mm")),
    Sketcher.Constraint("Radius", 3, Q("31.553818 mm")),
    Sketcher.Constraint("DistanceX", -1, 1, 0, 2, Q("11.51128 mm")),
    Sketcher.Constraint("DistanceY", -1, 1, 1, 1, Q("35.085182 mm")),
    Sketcher.Constraint("DistanceX", -1, 1, 3, 2, Q("9.080621 mm")),
    Sketcher.Constraint("DistanceX", 2, 2, 1, 1, Q("4.056312 mm")),
])
pad5 = doc.addObject("PartDesign::Pad", "Pad004")
body.addObject(pad5)
pad5.Profile = sketch17
pad5.Length = 9
pad5.Reversed = True

doc.recompute()
